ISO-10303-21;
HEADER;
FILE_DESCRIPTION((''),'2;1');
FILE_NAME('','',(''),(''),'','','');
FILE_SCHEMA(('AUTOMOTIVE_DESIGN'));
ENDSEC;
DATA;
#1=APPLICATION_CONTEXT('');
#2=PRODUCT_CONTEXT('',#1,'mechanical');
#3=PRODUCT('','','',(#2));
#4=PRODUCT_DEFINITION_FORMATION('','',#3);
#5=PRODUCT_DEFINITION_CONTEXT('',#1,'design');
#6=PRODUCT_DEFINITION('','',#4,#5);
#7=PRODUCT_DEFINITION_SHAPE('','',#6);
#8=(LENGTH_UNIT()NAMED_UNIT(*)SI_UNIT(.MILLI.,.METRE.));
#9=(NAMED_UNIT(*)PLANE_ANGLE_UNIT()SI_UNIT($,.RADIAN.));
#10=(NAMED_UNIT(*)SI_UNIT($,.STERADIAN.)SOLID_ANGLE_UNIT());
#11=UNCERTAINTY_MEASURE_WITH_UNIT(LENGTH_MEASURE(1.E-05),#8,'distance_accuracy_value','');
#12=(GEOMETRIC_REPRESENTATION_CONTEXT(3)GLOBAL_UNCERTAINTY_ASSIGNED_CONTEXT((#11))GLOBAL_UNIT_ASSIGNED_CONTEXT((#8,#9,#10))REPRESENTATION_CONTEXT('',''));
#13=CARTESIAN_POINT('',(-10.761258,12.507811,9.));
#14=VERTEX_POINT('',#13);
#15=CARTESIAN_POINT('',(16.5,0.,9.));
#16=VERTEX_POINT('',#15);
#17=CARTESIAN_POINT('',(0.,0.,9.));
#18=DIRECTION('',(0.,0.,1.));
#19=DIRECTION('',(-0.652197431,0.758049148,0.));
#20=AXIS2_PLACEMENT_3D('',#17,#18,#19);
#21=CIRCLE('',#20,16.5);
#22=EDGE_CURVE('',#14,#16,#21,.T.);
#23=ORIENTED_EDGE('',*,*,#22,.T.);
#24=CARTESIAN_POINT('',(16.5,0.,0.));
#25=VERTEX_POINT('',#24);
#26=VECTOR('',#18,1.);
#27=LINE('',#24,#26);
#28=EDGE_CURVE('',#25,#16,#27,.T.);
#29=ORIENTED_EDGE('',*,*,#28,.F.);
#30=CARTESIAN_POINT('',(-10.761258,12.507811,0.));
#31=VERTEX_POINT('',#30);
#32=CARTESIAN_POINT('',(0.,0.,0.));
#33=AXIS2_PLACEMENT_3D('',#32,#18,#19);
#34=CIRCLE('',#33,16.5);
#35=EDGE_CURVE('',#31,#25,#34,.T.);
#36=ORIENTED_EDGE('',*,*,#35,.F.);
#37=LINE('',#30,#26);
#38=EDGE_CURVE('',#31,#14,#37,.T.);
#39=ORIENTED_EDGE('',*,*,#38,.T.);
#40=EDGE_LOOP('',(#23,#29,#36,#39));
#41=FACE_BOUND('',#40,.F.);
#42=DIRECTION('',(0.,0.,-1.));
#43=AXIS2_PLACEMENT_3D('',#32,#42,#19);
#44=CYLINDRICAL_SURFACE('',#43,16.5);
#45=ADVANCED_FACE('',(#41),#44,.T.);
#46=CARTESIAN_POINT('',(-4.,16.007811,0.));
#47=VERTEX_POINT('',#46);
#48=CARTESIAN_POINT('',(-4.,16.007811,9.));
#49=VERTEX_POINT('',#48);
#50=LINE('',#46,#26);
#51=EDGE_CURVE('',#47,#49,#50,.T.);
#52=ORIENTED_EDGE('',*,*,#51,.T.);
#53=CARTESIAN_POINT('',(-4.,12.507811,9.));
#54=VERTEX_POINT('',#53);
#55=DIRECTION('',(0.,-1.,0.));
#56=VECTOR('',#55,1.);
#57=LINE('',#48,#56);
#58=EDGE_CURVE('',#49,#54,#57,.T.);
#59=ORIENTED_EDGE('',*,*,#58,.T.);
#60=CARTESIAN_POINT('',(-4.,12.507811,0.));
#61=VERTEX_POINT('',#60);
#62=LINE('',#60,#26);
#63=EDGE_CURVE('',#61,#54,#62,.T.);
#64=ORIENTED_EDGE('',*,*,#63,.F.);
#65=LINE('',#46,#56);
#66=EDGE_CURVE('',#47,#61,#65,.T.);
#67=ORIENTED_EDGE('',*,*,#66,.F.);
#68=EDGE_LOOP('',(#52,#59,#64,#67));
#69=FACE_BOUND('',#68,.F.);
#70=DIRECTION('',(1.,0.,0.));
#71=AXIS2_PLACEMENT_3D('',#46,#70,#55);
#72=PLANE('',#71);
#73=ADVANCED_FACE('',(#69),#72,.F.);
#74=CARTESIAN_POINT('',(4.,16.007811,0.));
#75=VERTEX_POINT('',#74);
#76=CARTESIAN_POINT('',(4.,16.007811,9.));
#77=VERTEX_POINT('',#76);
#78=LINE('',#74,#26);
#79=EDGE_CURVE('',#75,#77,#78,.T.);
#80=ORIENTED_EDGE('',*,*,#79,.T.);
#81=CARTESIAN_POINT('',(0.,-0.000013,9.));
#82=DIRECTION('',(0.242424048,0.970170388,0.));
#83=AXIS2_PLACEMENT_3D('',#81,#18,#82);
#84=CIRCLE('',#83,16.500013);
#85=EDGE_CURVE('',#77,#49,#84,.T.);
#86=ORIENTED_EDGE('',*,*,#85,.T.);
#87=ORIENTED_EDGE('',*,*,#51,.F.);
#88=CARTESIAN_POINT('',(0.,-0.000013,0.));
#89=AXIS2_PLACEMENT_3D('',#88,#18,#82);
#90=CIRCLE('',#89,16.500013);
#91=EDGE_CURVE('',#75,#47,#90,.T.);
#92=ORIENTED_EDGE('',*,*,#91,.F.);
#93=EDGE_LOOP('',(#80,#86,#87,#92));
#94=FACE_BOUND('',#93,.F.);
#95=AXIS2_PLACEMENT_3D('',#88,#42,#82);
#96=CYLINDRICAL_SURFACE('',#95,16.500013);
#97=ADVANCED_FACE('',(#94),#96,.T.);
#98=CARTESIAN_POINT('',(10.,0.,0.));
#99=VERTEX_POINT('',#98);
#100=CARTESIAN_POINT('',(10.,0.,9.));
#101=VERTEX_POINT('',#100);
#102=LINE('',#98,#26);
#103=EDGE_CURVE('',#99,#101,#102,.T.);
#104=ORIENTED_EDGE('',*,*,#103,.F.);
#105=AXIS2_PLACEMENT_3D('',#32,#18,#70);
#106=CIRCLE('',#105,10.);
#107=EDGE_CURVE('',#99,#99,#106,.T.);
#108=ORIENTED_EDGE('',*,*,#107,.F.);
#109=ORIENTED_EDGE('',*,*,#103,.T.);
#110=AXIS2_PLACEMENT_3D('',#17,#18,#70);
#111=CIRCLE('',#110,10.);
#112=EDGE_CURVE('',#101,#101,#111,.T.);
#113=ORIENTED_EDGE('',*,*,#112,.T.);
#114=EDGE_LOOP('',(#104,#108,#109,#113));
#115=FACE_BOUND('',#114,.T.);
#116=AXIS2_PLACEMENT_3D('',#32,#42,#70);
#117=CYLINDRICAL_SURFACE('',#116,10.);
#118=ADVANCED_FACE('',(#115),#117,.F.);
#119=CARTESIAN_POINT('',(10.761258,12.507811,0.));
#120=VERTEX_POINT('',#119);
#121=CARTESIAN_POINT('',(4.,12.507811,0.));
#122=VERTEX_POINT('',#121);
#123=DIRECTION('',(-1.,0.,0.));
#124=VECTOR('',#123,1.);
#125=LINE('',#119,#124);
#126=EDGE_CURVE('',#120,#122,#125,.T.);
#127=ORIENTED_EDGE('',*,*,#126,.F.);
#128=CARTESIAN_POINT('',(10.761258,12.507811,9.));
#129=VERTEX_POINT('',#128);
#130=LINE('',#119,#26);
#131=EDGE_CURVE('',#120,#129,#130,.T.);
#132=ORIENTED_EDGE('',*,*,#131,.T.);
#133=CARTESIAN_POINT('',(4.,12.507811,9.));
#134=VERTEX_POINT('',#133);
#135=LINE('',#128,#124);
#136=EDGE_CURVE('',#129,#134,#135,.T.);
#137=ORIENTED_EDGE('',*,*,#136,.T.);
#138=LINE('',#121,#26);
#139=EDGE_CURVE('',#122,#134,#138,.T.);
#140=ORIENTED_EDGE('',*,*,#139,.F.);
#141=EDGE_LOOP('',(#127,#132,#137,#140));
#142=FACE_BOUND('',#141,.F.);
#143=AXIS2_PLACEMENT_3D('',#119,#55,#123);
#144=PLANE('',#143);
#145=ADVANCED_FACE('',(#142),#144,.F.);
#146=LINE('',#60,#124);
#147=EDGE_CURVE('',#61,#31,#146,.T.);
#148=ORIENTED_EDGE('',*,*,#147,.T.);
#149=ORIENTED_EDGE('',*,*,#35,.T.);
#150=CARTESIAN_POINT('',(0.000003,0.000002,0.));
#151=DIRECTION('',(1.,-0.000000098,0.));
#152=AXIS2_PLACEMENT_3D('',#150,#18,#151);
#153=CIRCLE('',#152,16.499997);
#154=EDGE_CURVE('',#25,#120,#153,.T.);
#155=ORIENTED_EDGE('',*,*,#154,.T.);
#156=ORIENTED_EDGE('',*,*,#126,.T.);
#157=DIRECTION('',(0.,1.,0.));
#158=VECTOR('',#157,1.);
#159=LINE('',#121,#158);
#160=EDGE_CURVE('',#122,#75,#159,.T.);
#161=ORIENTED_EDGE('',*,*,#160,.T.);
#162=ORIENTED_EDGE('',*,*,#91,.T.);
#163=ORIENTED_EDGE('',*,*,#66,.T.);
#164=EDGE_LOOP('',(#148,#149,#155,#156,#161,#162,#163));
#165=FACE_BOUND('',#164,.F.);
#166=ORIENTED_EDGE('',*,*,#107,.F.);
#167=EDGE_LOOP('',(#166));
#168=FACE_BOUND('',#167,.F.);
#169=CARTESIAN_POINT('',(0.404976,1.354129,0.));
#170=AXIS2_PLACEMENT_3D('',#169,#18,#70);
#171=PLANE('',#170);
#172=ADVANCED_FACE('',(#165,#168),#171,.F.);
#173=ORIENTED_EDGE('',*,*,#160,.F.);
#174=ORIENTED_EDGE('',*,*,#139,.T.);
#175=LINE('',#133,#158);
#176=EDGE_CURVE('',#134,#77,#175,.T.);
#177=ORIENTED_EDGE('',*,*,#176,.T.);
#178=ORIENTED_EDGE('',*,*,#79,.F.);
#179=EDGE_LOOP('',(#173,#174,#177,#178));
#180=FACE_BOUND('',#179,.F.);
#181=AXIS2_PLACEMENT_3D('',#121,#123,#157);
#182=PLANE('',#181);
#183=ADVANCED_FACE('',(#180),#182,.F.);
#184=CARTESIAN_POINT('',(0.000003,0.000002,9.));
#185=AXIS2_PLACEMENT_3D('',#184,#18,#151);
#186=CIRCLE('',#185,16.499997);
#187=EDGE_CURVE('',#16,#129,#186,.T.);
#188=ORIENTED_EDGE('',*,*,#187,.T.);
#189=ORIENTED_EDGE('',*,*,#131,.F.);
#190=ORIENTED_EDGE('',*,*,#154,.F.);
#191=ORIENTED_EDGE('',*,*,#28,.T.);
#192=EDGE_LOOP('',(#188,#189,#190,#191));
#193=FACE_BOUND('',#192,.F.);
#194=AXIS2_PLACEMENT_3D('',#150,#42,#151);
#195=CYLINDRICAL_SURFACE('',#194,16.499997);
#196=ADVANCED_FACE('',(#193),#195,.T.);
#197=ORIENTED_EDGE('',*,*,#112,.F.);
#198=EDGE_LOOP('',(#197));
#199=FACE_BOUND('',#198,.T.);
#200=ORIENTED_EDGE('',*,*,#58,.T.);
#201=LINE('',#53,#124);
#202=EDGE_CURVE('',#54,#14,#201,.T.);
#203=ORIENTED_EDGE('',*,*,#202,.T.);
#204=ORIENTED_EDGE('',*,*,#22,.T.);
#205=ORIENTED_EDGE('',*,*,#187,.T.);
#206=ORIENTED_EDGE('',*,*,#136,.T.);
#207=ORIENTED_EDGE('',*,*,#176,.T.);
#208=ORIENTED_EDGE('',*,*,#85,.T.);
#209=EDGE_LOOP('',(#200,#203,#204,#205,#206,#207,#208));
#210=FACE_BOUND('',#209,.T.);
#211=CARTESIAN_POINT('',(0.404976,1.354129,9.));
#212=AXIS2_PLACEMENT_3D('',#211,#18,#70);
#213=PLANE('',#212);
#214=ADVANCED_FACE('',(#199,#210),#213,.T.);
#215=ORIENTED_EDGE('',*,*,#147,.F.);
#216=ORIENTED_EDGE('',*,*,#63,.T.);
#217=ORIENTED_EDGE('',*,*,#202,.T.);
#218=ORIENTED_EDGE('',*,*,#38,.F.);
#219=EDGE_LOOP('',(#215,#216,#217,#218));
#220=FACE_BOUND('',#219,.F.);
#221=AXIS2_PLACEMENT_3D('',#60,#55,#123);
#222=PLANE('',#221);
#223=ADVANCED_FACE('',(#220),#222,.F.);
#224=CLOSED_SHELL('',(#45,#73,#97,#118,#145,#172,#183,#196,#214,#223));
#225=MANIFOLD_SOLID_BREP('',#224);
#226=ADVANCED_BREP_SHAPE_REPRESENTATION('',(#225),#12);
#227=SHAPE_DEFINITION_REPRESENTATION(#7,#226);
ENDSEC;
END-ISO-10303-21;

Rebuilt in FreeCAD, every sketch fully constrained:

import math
import FreeCAD as App
import Part
import Sketcher

V = App.Vector

doc = App.newDocument("Part")
params = doc.addObject("Spreadsheet::Sheet", "Params")
for row, (alias, value) in enumerate([
    ("sketch1_diameter", "20 mm"),
    ("sketch1_radius", "16.5 mm"),
    ("sketch1_height", "3.5 mm"),
    ("pad1_length", "9 mm"),
], start=1):
    params.set(f"A{row}", alias)
    params.set(f"B{row}", "=" + value)
    params.setAlias(f"B{row}", alias)

body = doc.addObject("PartDesign::Body", "Body")

sketch1 = body.newObject("Sketcher::SketchObject", "Sketch")
sketch1.AttachmentSupport = (doc.getObject("XY_Plane"), [""])
sketch1.MapMode = "FlatFace"
sketch1.addGeometry([
    Part.ArcOfCircle(Part.Circle(V(0, 0, 0), V(0, 0, 1), 16.5), math.radians(131), math.radians(360)),
    Part.ArcOfCircle(Part.Circle(V(0, 0, 0), V(0, 0, 1), 16.5), math.radians(0), math.radians(49)),
    Part.LineSegment(V(10.8, 12.5, 0), V(4, 12.5, 0)),
    Part.LineSegment(V(4, 12.5, 0), V(4, 16, 0)),
    Part.ArcOfCircle(Part.Circle(V(0, 0, 0), V(0, 0, 1), 16.5), math.radians(76), math.radians(104)),
    Part.LineSegment(V(-4, 16, 0), V(-4, 12.5, 0)),
    Part.LineSegment(V(-4, 12.5, 0), V(-10.8, 12.5, 0)),
    Part.Circle(V(0, 0, 0), V(0, 0, 1), 10),
], False)
sketch1.addConstraint([
    Sketcher.Constraint("Tangent", 0, 2, 1, 1),
    Sketcher.Constraint("Coincident", 1, 2, 2, 1),
    Sketcher.Constraint("Coincident", 2, 2, 3, 1),
    Sketcher.Constraint("Coincident", 3, 2, 4, 1),
    Sketcher.Constraint("Coincident", 4, 2, 5, 1),
    Sketcher.Constraint("Coincident", 5, 2, 6, 1),
    Sketcher.Constraint("Coincident", 6, 2, 0, 1),
    Sketcher.Constraint("Horizontal", 2),
    Sketcher.Constraint("Vertical", 3),
    Sketcher.Constraint("Vertical", 5),
    Sketcher.Constraint("Horizontal", 6),
    Sketcher.Constraint("Coincident", 0, 3, -1, 1),
    Sketcher.Constraint("Coincident", 7, 3, -1, 1),
    Sketcher.Constraint("Symmetric", 3, 2, 4, 2, -2),
    Sketcher.Constraint("Symmetric", 1, 2, 6, 2, -2),
    Sketcher.Constraint("PointOnObject", 0, 2, -1),
    Sketcher.Constraint("Diameter", 7, 20.0),
    Sketcher.Constraint("Radius", 0, 16.5),
    Sketcher.Constraint("DistanceY", 3, 1, 3, 2, 3.5),
    Sketcher.Constraint("DistanceX", -1, 1, 2, 2, 4.0),
    Sketcher.Constraint("Radius", 4, 16.500013),
    Sketcher.Constraint("DistanceX", 2, 2, 2, 1, 6.761258),
])
sketch1.setExpression("Constraints[16]", "Params.sketch1_diameter")
sketch1.setExpression("Constraints[17]", "Params.sketch1_radius")
sketch1.setExpression("Constraints[18]", "Params.sketch1_height")
pad1 = body.newObject("PartDesign::Pad", "Pad")
pad1.Profile = sketch1
pad1.setExpression("Length", "Params.pad1_length")

doc.recompute()
